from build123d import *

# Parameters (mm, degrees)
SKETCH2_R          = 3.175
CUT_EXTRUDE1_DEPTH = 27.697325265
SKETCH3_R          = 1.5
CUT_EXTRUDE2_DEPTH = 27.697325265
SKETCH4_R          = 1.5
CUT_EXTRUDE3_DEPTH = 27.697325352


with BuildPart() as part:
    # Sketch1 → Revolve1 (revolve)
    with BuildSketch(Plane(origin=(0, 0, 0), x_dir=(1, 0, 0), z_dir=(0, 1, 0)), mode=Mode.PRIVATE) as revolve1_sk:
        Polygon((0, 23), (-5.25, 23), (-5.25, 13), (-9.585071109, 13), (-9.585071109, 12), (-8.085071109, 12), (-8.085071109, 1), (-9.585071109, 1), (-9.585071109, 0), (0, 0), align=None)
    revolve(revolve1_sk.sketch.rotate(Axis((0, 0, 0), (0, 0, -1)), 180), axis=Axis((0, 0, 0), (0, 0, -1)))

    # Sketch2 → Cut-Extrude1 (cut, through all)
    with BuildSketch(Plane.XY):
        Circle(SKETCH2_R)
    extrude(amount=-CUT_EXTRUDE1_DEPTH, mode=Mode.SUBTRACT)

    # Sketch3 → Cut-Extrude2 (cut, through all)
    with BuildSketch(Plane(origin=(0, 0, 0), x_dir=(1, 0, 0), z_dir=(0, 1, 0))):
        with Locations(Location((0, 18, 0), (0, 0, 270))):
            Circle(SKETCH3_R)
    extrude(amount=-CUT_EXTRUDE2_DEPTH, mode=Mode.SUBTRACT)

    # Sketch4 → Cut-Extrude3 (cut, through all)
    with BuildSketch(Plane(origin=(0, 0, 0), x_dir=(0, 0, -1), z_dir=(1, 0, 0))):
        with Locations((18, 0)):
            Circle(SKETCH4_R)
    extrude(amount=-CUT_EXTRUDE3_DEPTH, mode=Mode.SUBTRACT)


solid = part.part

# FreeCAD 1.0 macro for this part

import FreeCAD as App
import Part
import Sketcher
from FreeCAD import Vector


def add_polygon(sketch, points):
    """Adds a closed chain of lines whose ends are joined by coincident constraints."""
    first, n = sketch.GeometryCount, len(points)
    for a, b in zip(points, points[1:] + points[:1]):
        sketch.addGeometry(Part.LineSegment(App.Vector(*a, 0), App.Vector(*b, 0)), False)
    for i in range(n):
        sketch.addConstraint(Sketcher.Constraint("Coincident", first + i, 2, first + (i + 1) % n, 1))

doc = App.newDocument("Part")
body = doc.addObject("PartDesign::Body", "Body")

# Sketch on XZ plane
sketch1 = body.newObject("Sketcher::SketchObject", "Sketch")
sketch1.AttachmentSupport = (doc.getObject("XZ_Plane"), [""])
sketch1.MapMode = "FlatFace"
add_polygon(sketch1, [(0, -23), (-5.2, -23), (-5.2, -13), (-9.6, -13), (-9.6, -12), (-8.1, -12), (-8.1, -1), (-9.6, -1), (-9.6, 0), (0, 0)])  # lines 0-9
sketch1.addConstraint([
    Sketcher.Constraint("Horizontal", 0),
    Sketcher.Constraint("Vertical", 1),
    Sketcher.Constraint("Horizontal", 2),
    Sketcher.Constraint("Vertical", 3),
    Sketcher.Constraint("Horizontal", 4),
    Sketcher.Constraint("Vertical", 5),
    Sketcher.Constraint("Horizontal", 6),
    Sketcher.Constraint("Vertical", 7),
    Sketcher.Constraint("Horizontal", 8),
    Sketcher.Constraint("Vertical", 9),
    Sketcher.Constraint("Coincident", 8, 2, -1, 1),
    Sketcher.Constraint("Vertical", 3, 2, 6, 2),
    Sketcher.Constraint("Equal", 3, 7),
    Sketcher.Constraint("DistanceY", 1, 1, 1, 2, 10.0),
    Sketcher.Constraint("DistanceY", 3, 1, 3, 2, 1.0),
    Sketcher.Constraint("DistanceY", 5, 1, 5, 2, 11.0),
    Sketcher.Constraint("DistanceX", 4, 1, 4, 2, 1.5),
    Sketcher.Constraint("DistanceX", 0, 2, 0, 1, 5.25),
    Sketcher.Constraint("DistanceX", 2, 2, 2, 1, 4.335071),
])
revolution = body.newObject("PartDesign::Revolution", "Revolution")
revolution.Profile = sketch1
revolution.ReferenceAxis = (sketch1, ["V_Axis"])
revolution.Angle = 360

# Sketch on XY plane
sketch2 = body.newObject("Sketcher::SketchObject", "Sketch001")
sketch2.AttachmentSupport = (doc.getObject("XY_Plane"), [""])
sketch2.MapMode = "FlatFace"
sketch2.addGeometry(Part.Circle(Vector(0, 0, 0), Vector(0, 0, 1), 3.2), False)
sketch2.addConstraint([
    Sketcher.Constraint("Coincident", 0, 3, -1, 1),
    Sketcher.Constraint("Diameter", 0, 6.35),
])
pocket1 = body.newObject("PartDesign::Pocket", "Pocket")
pocket1.Profile = sketch2
pocket1.Type = "ThroughAll"

# Sketch on XZ plane
sketch3 = body.newObject("Sketcher::SketchObject", "Sketch002")
sketch3.AttachmentSupport = (doc.getObject("XZ_Plane"), [""])
sketch3.MapMode = "FlatFace"
sketch3.addGeometry(Part.Circle(Vector(0, -18, 0), Vector(0, 0, 1), 1.5), False)
sketch3.addConstraint([
    Sketcher.Constraint("PointOnObject", 0, 3, -2),
    Sketcher.Constraint("Diameter", 0, 3.0),
    Sketcher.Constraint("DistanceY", 0, 3, -1, 1, 18.0),
])
pocket2 = body.newObject("PartDesign::Pocket", "Pocket001")
pocket2.Profile = sketch3
pocket2.Type = "ThroughAll"
pocket2.Reversed = True

# Sketch on YZ plane
sketch4 = body.newObject("Sketcher::SketchObject", "Sketch003")
sketch4.AttachmentSupport = (doc.getObject("YZ_Plane"), [""])
sketch4.MapMode = "FlatFace"
sketch4.addGeometry(Part.Circle(Vector(0, -18, 0), Vector(0, 0, 1), 1.5), False)
sketch4.addConstraint([
    Sketcher.Constraint("PointOnObject", 0, 3, -2),
    Sketcher.Constraint("Diameter", 0, 3.0),
    Sketcher.Constraint("DistanceY", 0, 3, -1, 1, 18.0),
])
pocket3 = body.newObject("PartDesign::Pocket", "Pocket002")
pocket3.Profile = sketch4
pocket3.Type = "ThroughAll"

doc.recompute()
